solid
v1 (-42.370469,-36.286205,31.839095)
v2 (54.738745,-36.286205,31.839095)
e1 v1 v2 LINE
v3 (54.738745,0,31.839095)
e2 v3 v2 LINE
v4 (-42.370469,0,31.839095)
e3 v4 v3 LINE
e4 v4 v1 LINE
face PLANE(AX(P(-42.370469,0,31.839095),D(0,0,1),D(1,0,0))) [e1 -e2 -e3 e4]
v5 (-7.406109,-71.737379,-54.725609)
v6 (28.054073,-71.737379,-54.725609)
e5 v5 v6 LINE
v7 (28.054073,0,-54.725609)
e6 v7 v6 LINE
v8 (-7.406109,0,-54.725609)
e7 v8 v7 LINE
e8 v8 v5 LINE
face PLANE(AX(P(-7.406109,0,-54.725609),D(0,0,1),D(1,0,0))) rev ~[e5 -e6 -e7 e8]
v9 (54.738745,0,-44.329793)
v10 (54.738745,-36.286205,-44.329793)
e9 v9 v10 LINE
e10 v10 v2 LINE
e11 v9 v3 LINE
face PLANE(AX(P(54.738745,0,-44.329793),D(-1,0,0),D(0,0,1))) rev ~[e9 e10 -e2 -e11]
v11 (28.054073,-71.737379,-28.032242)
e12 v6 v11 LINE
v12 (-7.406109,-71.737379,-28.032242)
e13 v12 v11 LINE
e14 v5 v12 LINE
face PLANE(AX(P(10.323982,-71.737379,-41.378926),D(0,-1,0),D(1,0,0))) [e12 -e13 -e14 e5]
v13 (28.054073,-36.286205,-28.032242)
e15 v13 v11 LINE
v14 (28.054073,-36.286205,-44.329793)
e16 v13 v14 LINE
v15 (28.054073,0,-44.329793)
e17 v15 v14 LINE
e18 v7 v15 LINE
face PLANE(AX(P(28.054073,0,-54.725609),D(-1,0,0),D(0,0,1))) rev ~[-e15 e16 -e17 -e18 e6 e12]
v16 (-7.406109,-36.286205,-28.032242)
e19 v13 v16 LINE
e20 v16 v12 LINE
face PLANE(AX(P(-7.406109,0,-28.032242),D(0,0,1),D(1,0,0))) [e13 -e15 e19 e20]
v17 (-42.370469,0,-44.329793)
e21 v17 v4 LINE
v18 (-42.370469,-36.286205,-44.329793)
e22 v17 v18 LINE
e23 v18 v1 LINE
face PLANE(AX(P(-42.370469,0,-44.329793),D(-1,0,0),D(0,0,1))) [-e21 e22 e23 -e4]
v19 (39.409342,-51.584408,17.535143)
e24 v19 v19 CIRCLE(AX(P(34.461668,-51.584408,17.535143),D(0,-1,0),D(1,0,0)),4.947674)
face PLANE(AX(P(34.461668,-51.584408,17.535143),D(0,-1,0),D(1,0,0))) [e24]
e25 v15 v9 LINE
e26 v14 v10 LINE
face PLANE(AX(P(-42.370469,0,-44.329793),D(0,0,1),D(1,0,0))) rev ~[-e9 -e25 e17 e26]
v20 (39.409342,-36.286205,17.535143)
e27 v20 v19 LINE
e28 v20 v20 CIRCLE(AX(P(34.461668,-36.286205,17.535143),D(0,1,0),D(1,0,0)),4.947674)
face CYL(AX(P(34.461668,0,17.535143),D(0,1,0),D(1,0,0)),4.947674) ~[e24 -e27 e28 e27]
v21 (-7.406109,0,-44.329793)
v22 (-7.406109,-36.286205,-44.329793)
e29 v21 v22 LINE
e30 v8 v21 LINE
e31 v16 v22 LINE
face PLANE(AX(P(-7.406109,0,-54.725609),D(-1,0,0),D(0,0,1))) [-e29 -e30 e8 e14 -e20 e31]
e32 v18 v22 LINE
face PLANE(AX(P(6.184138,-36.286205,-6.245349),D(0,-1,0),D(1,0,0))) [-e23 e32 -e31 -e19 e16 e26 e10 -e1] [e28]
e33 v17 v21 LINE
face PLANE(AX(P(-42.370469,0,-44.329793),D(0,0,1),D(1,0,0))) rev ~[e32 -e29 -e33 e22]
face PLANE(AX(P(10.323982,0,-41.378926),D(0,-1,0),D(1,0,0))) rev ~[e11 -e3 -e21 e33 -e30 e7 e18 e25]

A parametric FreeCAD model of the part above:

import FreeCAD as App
import Part
import Sketcher
from FreeCAD import Vector
Q = App.Units.Quantity


def add_polygon(sketch, points):
    """Adds a closed chain of lines whose ends are joined by coincident constraints."""
    first, n = sketch.GeometryCount, len(points)
    for a, b in zip(points, points[1:] + points[:1]):
        sketch.addGeometry(Part.LineSegment(App.Vector(*a, 0), App.Vector(*b, 0)), False)
    for i in range(n):
        sketch.addConstraint(Sketcher.Constraint("Coincident", first + i, 2, first + (i + 1) % n, 1))

doc = App.newDocument("Part")
body = doc.addObject("PartDesign::Body", "Body")

sketch1 = body.newObject("Sketcher::SketchObject", "Sketch")
sketch1.AttachmentSupport = (doc.getObject("XZ_Plane"), [""])
sketch1.MapMode = "FlatFace"
add_polygon(sketch1, [(-42, 32), (-42, -44), (55, -44), (55, 32)])
sketch1.addConstraint(Sketcher.Constraint("Vertical", 0))
sketch1.addConstraint(Sketcher.Constraint("Horizontal", 1))
sketch1.addConstraint(Sketcher.Constraint("Vertical", 2))
sketch1.addConstraint(Sketcher.Constraint("Horizontal", 3))
sketch1.addConstraint(Sketcher.Constraint("DistanceX", 1, 1, 1, 2, Q("97.109213 mm")))
sketch1.addConstraint(Sketcher.Constraint("DistanceY", 0, 2, 0, 1, Q("76.168887 mm")))
sketch1.addConstraint(Sketcher.Constraint("DistanceX", 0, 2, -1, 1, Q("42.370469 mm")))
sketch1.addConstraint(Sketcher.Constraint("DistanceY", 0, 2, -1, 1, Q("44.329793 mm")))
pad1 = body.newObject("PartDesign::Pad", "Pad")
pad1.Profile = sketch1
pad1.Length = 36.286205

sketch2 = body.newObject("Sketcher::SketchObject", "Sketch001")
sketch2.AttachmentSupport = (doc.getObject("XZ_Plane"), [""])
sketch2.MapMode = "FlatFace"
sketch2.addGeometry(Part.Circle(Vector(34.5, 17.5, 0), Vector(0, 0, 1), 4.9), False)
sketch2.addConstraint(Sketcher.Constraint("Diameter", 0, Q("9.895348 mm")))
sketch2.addConstraint(Sketcher.Constraint("DistanceX", -1, 1, 0, 3, Q("34.461668 mm")))
sketch2.addConstraint(Sketcher.Constraint("DistanceY", -1, 1, 0, 3, Q("17.535143 mm")))
pad2 = body.newObject("PartDesign::Pad", "Pad001")
pad2.Profile = sketch2
pad2.Length = 51.584408

sketch3 = body.newObject("Sketcher::SketchObject", "Sketch002")
sketch3.AttachmentSupport = (doc.getObject("XZ_Plane"), [""])
sketch3.MapMode = "FlatFace"
add_polygon(sketch3, [(-7, -28), (-7, -55), (28, -55), (28, -28)])
sketch3.addConstraint(Sketcher.Constraint("Vertical", 0))
sketch3.addConstraint(Sketcher.Constraint("Horizontal", 1))
sketch3.addConstraint(Sketcher.Constraint("Vertical", 2))
sketch3.addConstraint(Sketcher.Constraint("Horizontal", 3))
sketch3.addConstraint(Sketcher.Constraint("DistanceX", 1, 1, 1, 2, Q("35.460181 mm")))
sketch3.addConstraint(Sketcher.Constraint("DistanceY", 0, 2, 0, 1, Q("26.693367 mm")))
sketch3.addConstraint(Sketcher.Constraint("DistanceX", 0, 2, -1, 1, Q("7.406109 mm")))
sketch3.addConstraint(Sketcher.Constraint("DistanceY", 0, 2, -1, 1, Q("54.725609 mm")))
pad3 = body.newObject("PartDesign::Pad", "Pad002")
pad3.Profile = sketch3
pad3.Length = 71.737379

doc.recompute()
